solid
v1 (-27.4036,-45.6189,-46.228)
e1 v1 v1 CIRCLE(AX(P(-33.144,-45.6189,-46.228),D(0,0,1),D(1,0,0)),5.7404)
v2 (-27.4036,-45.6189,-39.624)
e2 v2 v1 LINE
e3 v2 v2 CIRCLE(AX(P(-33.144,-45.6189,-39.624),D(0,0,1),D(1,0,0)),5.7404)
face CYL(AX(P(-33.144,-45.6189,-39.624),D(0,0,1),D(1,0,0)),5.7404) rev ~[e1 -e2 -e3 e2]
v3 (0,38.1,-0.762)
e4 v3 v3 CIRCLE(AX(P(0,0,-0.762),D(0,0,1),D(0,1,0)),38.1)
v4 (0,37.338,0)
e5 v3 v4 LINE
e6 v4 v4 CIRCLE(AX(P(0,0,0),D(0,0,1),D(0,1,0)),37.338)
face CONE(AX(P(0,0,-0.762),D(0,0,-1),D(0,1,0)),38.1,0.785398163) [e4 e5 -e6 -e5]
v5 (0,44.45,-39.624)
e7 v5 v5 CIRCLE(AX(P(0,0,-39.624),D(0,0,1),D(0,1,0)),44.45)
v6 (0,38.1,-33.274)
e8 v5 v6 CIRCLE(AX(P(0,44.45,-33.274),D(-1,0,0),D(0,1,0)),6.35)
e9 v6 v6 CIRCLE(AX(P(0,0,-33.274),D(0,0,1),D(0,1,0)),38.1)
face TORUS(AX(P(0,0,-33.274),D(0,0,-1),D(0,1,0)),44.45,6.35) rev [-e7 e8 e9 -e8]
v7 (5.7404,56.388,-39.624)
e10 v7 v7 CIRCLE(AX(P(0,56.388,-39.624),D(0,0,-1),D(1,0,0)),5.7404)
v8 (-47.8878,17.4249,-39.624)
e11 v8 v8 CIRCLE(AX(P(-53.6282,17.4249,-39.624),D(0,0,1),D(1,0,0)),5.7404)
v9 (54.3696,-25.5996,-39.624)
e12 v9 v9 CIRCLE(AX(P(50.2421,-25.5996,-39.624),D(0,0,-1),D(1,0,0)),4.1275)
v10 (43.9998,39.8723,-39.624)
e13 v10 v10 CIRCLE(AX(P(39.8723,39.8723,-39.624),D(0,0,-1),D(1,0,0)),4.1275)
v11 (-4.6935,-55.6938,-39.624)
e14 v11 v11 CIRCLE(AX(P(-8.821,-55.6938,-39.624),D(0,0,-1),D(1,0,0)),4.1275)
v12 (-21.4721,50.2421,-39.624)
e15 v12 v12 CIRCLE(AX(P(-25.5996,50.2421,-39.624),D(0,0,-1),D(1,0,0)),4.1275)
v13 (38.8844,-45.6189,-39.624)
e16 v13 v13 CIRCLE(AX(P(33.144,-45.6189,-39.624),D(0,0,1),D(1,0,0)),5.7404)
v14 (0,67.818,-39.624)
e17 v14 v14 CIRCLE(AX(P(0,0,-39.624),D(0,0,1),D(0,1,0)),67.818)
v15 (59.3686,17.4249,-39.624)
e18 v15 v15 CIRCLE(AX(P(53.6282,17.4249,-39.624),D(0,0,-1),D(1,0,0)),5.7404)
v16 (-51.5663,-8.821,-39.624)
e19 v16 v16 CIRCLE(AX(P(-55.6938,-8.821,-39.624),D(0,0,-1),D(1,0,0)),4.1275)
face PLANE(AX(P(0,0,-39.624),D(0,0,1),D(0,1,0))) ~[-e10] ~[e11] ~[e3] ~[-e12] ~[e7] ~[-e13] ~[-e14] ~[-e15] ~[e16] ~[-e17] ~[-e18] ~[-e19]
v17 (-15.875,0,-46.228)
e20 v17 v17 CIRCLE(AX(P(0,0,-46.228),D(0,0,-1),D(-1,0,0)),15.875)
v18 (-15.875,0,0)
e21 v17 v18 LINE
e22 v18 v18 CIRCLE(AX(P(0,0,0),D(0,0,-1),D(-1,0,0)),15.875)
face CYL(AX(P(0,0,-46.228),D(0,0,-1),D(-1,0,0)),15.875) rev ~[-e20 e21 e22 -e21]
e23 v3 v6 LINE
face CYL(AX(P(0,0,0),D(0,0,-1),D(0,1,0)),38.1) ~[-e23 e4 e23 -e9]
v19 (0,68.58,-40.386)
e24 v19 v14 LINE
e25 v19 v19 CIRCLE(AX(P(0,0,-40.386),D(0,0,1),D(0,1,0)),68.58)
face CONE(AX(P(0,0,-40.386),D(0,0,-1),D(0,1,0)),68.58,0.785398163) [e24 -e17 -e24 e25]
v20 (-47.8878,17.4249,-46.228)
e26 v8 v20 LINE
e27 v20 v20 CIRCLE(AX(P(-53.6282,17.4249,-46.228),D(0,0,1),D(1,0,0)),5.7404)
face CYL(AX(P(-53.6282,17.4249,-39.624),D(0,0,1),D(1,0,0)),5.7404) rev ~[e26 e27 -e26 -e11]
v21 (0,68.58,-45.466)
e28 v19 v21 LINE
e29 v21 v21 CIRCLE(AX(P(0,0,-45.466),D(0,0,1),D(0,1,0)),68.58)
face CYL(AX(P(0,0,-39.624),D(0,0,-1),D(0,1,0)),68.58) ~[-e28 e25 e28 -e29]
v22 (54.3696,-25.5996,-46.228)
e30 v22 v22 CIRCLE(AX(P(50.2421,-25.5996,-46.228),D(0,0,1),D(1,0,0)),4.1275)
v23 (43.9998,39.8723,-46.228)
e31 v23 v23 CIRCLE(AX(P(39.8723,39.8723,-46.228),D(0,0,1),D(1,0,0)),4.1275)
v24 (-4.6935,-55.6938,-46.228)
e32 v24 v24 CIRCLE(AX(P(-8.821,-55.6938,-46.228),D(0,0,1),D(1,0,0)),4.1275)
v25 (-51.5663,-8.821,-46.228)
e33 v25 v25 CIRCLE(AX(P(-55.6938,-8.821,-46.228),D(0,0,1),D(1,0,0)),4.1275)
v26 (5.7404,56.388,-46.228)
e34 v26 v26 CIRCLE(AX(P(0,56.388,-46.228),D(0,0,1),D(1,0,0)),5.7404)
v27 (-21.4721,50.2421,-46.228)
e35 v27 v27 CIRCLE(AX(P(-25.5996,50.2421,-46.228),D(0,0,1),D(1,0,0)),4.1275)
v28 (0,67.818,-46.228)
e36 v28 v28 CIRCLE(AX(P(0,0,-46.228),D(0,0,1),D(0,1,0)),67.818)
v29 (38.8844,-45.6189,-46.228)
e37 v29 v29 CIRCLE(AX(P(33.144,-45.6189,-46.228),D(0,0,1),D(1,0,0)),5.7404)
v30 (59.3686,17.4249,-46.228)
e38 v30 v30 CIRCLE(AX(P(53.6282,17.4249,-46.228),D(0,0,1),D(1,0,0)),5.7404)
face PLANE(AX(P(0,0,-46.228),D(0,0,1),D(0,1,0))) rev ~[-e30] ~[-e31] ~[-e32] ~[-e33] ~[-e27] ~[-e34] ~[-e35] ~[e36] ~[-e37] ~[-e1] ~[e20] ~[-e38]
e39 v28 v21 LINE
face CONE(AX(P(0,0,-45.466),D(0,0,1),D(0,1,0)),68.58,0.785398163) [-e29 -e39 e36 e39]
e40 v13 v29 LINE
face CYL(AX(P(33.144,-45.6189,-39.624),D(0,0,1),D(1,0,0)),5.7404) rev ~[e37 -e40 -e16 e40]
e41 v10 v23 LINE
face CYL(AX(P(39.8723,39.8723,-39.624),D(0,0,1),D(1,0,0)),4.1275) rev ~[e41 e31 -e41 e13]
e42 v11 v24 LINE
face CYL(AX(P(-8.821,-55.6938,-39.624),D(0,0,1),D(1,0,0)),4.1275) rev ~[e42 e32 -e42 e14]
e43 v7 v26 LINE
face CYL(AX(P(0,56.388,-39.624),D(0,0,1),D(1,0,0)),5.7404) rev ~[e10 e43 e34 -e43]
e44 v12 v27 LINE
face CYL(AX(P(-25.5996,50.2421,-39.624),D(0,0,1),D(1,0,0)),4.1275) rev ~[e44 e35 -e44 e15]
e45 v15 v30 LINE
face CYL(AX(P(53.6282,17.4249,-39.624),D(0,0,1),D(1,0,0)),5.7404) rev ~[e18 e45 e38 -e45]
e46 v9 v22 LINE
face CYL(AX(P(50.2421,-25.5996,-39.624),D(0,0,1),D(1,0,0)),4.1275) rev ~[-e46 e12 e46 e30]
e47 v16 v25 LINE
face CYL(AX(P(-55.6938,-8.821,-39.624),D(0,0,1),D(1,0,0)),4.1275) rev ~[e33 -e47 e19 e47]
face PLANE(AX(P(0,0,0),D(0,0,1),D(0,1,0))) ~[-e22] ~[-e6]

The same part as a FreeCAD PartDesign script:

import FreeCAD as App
import Part
import Sketcher
from FreeCAD import Vector
Q = App.Units.Quantity


def edges_at(feature, points):
    """Names of the edges that pass closest to the given points."""
    edges = feature.Shape.Edges
    near = lambda p: min(range(len(edges)), key=lambda i: edges[i].distToShape(Part.Vertex(*p))[0])
    return sorted({f"Edge{near(p) + 1}" for p in points})

doc = App.newDocument("Part")
body = doc.addObject("PartDesign::Body", "Body")

sketch1 = body.newObject("Sketcher::SketchObject", "Sketch")
sketch1.AttachmentSupport = (doc.getObject("YZ_Plane"), [""])
sketch1.MapMode = "FlatFace"
sketch1.addGeometry([
    Part.LineSegment(Vector(38.1, 0, 0), Vector(0, 0, 0)),
    Part.LineSegment(Vector(0, 0, 0), Vector(0, -64.5, 0)),
    Part.LineSegment(Vector(0, -64.5, 0), Vector(28.4, -64.5, 0)),
    Part.LineSegment(Vector(28.4, -64.5, 0), Vector(28.4, -51.3, 0)),
    Part.LineSegment(Vector(28.4, -51.3, 0), Vector(32.5, -51.3, 0)),
    Part.LineSegment(Vector(32.5, -51.3, 0), Vector(32.5, -46.2, 0)),
    Part.LineSegment(Vector(32.5, -46.2, 0), Vector(68.6, -46.2, 0)),
    Part.LineSegment(Vector(68.6, -46.2, 0), Vector(68.6, -39.6, 0)),
    Part.LineSegment(Vector(68.6, -39.6, 0), Vector(38.1, -39.6, 0)),
    Part.LineSegment(Vector(38.1, -39.6, 0), Vector(38.1, 0, 0)),
], False)
sketch1.addConstraint([
    Sketcher.Constraint("Coincident", 0, 2, 1, 1),
    Sketcher.Constraint("Coincident", 1, 2, 2, 1),
    Sketcher.Constraint("Coincident", 2, 2, 3, 1),
    Sketcher.Constraint("Coincident", 3, 2, 4, 1),
    Sketcher.Constraint("Coincident", 4, 2, 5, 1),
    Sketcher.Constraint("Coincident", 5, 2, 6, 1),
    Sketcher.Constraint("Coincident", 6, 2, 7, 1),
    Sketcher.Constraint("Coincident", 7, 2, 8, 1),
    Sketcher.Constraint("Coincident", 8, 2, 9, 1),
    Sketcher.Constraint("Coincident", 9, 2, 0, 1),
    Sketcher.Constraint("Horizontal", 0),
    Sketcher.Constraint("Vertical", 1),
    Sketcher.Constraint("Horizontal", 2),
    Sketcher.Constraint("Vertical", 3),
    Sketcher.Constraint("Horizontal", 4),
    Sketcher.Constraint("Vertical", 5),
    Sketcher.Constraint("Horizontal", 6),
    Sketcher.Constraint("Vertical", 7),
    Sketcher.Constraint("Horizontal", 8),
    Sketcher.Constraint("Vertical", 9),
    Sketcher.Constraint("Coincident", 0, 2, -1, 1),
    Sketcher.Constraint("DistanceX", 0, 2, 0, 1, Q("1.5 in")),
    Sketcher.Constraint("DistanceX", 8, 2, 8, 1, Q("1.2 in")),
    Sketcher.Constraint("DistanceY", 5, 1, 5, 2, Q("0.2 in")),
    Sketcher.Constraint("DistanceX", 4, 1, 4, 2, Q("0.16 in")),
    Sketcher.Constraint("DistanceX", 6, 1, 6, 2, Q("1.42 in")),
    Sketcher.Constraint("DistanceY", 3, 1, 3, 2, Q("0.52 in")),
    Sketcher.Constraint("DistanceY", 7, 1, 7, 2, Q("0.26 in")),
    Sketcher.Constraint("DistanceY", 9, 1, 9, 2, Q("1.56 in")),
])
revolution = body.newObject("PartDesign::Revolution", "Revolution")
revolution.Profile = sketch1
revolution.ReferenceAxis = (sketch1, ["V_Axis"])
revolution.Angle = 360

sketch2 = body.newObject("Sketcher::SketchObject", "Sketch001")
sketch2.AttachmentSupport = (doc.getObject("XY_Plane"), [""])
sketch2.MapMode = "FlatFace"
sketch2.AttachmentOffset = App.Placement(Vector(0, 0, -2.54 * 25.4), App.Rotation())
sketch2.addGeometry(Part.Circle(Vector(0, 0, 0), Vector(0, 0, 1), 25), False)
sketch2.addConstraint([
    Sketcher.Constraint("Coincident", 0, 3, -1, 1),
    Sketcher.Constraint("Diameter", 0, Q("2 in")),
])
pocket1 = body.newObject("PartDesign::Pocket", "Pocket")
pocket1.Profile = sketch2
pocket1.Length = Q("0.72 in")
pocket1.Reversed = True

sketch3 = body.newObject("Sketcher::SketchObject", "Sketch002")
sketch3.AttachmentSupport = (doc.getObject("XY_Plane"), [""])
sketch3.MapMode = "FlatFace"
sketch3.AttachmentOffset = App.Placement(Vector(0, 0, -1.82 * 25.4), App.Rotation())
sketch3.addGeometry(Part.Circle(Vector(0, 0, 0), Vector(0, 0, 1), 16), False)
sketch3.addConstraint([
    Sketcher.Constraint("Coincident", 0, 3, -1, 1),
    Sketcher.Constraint("Diameter", 0, Q("1.25 in")),
])
pocket2 = body.newObject("PartDesign::Pocket", "Pocket001")
pocket2.Profile = sketch3
pocket2.Length = Q("1.82 in")
pocket2.Reversed = True
doc.recompute()

fillet = body.newObject("PartDesign::Fillet", "Fillet")
fillet.Base = (pocket2, edges_at(pocket2, [(0, -28.448, -51.308), (0, -32.512, -46.228)]))
fillet.Radius = Q("0.075 in")
doc.recompute()

chamfer = body.newObject("PartDesign::Chamfer", "Chamfer")
chamfer.Base = (fillet, edges_at(fillet, [
    (0, -68.58, -46.228),
    (0, -68.58, -39.624),
    (0, -38.1, 0),
    (0, -32.512, -51.308),
    (0, -28.448, -64.516),
]))
chamfer.Size = Q("0.03 in")
doc.recompute()

fillet2 = body.newObject("PartDesign::Fillet", "Fillet001")
fillet2.Base = (chamfer, edges_at(chamfer, [(0, -38.1, -39.624)]))
fillet2.Radius = Q("0.25 in")

sketch4 = body.newObject("Sketcher::SketchObject", "Sketch003")
sketch4.AttachmentSupport = (doc.getObject("XY_Plane"), [""])
sketch4.MapMode = "FlatFace"
sketch4.AttachmentOffset = App.Placement(Vector(0, 0, -1.56 * 25.4), App.Rotation())
sketch4.addGeometry([
    Part.Circle(Vector(53.6, 17.4, 0), Vector(0, 0, 1), 5.7),
    Part.Circle(Vector(0, 56.4, 0), Vector(0, 0, 1), 5.7),
    Part.Circle(Vector(39.9, 39.9, 0), Vector(0, 0, 1), 2.5),
    Part.Circle(Vector(33.1, -45.6, 0), Vector(0, 0, 1), 5.7),
    Part.Circle(Vector(-33.1, -45.6, 0), Vector(0, 0, 1), 5.7),
    Part.Circle(Vector(-53.6, 17.4, 0), Vector(0, 0, 1), 5.7),
], False)
sketch4.addConstraint([
    Sketcher.Constraint("Equal", 0, 1),
    Sketcher.Constraint("Equal", 1, 3),
    Sketcher.Constraint("Equal", 3, 4),
    Sketcher.Constraint("Equal", 4, 5),
    Sketcher.Constraint("Symmetric", 3, 3, 4, 3, -2),
    Sketcher.Constraint("Symmetric", 0, 3, 5, 3, -2),
    Sketcher.Constraint("PointOnObject", 1, 3, -2),
    Sketcher.Constraint("Diameter", 2, Q("0.2 in")),
    Sketcher.Constraint("Diameter", 0, Q("0.452 in")),
    Sketcher.Constraint("DistanceY", -1, 1, 1, 3, Q("2.22 in")),
    Sketcher.Constraint("DistanceX", 3, 3, 2, 3, Q("0.2649 in")),
    Sketcher.Constraint("DistanceY", 3, 3, 2, 3, Q("3.3658 in")),
    Sketcher.Constraint("DistanceX", 5, 3, 0, 3, Q("4.2227 in")),
    Sketcher.Constraint("DistanceY", -1, 1, 0, 3, Q("17.425 mm")),
    Sketcher.Constraint("DistanceX", -1, 1, 2, 3, Q("39.8723 mm")),
    Sketcher.Constraint("DistanceY", -1, 1, 2, 3, Q("39.8723 mm")),
])
pocket3 = body.newObject("PartDesign::Pocket", "Pocket002")
pocket3.Profile = sketch4
pocket3.Length = Q("0.26 in")

sketch5 = body.newObject("Sketcher::SketchObject", "Sketch004")
sketch5.AttachmentSupport = (doc.getObject("XY_Plane"), [""])
sketch5.MapMode = "FlatFace"
sketch5.AttachmentOffset = App.Placement(Vector(0, 0, -1.82 * 25.4), App.Rotation())
sketch5.addGeometry(Part.Circle(Vector(0, 0, 0), Vector(0, 0, 1), 44), False)
sketch5.addConstraint([
    Sketcher.Constraint("Coincident", 0, 3, -1, 1),
    Sketcher.Constraint("Diameter", 0, Q("3.5 in")),
])
pocket4 = body.newObject("PartDesign::Pocket", "Pocket003")
pocket4.Profile = sketch5
pocket4.Length = Q("0.72 in")

sketch6 = body.newObject("Sketcher::SketchObject", "Sketch005")
sketch6.AttachmentSupport = (doc.getObject("XY_Plane"), [""])
sketch6.MapMode = "FlatFace"
sketch6.AttachmentOffset = App.Placement(Vector(0, 0, -1.56 * 25.4), App.Rotation())
sketch6.addGeometry([
    Part.Circle(Vector(-25.6, 50.2, 0), Vector(0, 0, 1), 4.1),
    Part.Circle(Vector(39.9, 39.9, 0), Vector(0, 0, 1), 4.1),
    Part.Circle(Vector(39.9, 39.9, 0), Vector(0, 0, 1), 2.5),
    Part.Circle(Vector(-55.7, -8.8, 0), Vector(0, 0, 1), 4.1),
    Part.Circle(Vector(50.2, -25.6, 0), Vector(0, 0, 1), 4.1),
    Part.Circle(Vector(-8.8, -55.7, 0), Vector(0, 0, 1), 4.1),
], False)
sketch6.addConstraint([
    Sketcher.Constraint("Coincident", 2, 3, 1, 3),
    Sketcher.Constraint("Equal", 0, 1),
    Sketcher.Constraint("Equal", 1, 3),
    Sketcher.Constraint("Equal", 3, 4),
    Sketcher.Constraint("Equal", 4, 5),
    Sketcher.Constraint("Diameter", 0, Q("0.325 in")),
    Sketcher.Constraint("Diameter", 2, Q("0.2 in")),
    Sketcher.Constraint("DistanceX", 3, 3, 0, 3, Q("1.1848 in")),
    Sketcher.Constraint("DistanceX", 0, 3, 4, 3, Q("2.9859 in")),
    Sketcher.Constraint("DistanceY", 4, 3, 0, 3, Q("2.9859 in")),
    Sketcher.Constraint("DistanceY", 5, 3, 4, 3, Q("1.1848 in")),
    Sketcher.Constraint("DistanceX", 0, 3, -1, 1, Q("25.5996 mm")),
    Sketcher.Constraint("DistanceY", -1, 1, 0, 3, Q("50.242 mm")),
    Sketcher.Constraint("DistanceX", -1, 1, 1, 3, Q("39.8723 mm")),
    Sketcher.Constraint("DistanceY", -1, 1, 1, 3, Q("39.8723 mm")),
    Sketcher.Constraint("DistanceY", 3, 3, -1, 1, Q("8.821 mm")),
    Sketcher.Constraint("DistanceX", 5, 3, -1, 1, Q("8.821 mm")),
])
pocket5 = body.newObject("PartDesign::Pocket", "Pocket004")
pocket5.Profile = sketch6
pocket5.Length = Q("1 in")

doc.recompute()
